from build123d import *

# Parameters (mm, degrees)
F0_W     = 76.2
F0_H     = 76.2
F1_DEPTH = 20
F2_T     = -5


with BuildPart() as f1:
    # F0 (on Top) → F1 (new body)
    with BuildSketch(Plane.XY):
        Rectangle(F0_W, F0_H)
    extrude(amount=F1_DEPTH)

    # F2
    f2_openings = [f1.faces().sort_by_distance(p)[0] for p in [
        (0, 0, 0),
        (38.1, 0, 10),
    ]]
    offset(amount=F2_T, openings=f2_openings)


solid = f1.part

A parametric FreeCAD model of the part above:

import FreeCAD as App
import Part
import Sketcher
Q = App.Units.Quantity


def faces_at(feature, points):
    """Names of the faces that lie closest to the given points."""
    faces = feature.Shape.Faces
    near = lambda p: min(range(len(faces)), key=lambda i: faces[i].distToShape(Part.Vertex(*p))[0])
    return sorted({f"Face{near(p) + 1}" for p in points})

doc = App.newDocument("Part")
params = doc.addObject("Spreadsheet::Sheet", "Params")
for row, (alias, value) in enumerate([
    ("sketch1_width", "76.2 mm"),
    ("pad1_length", "20 mm"),
    ("thickness_wall", "5 mm"),
], start=1):
    params.set(f"A{row}", alias)
    params.set(f"B{row}", "=" + value)
    params.setAlias(f"B{row}", alias)

body = doc.addObject("PartDesign::Body", "Body")

sketch1 = doc.addObject("Sketcher::SketchObject", "Sketch")
body.addObject(sketch1)
sketch1.AttachmentSupport = (doc.XY_Plane, [""])
sketch1.MapMode = "FlatFace"
sketch1.addGeometry([
    Part.LineSegment(App.Vector(-38, 38, 0), App.Vector(-38, -38, 0)),
    Part.LineSegment(App.Vector(-38, -38, 0), App.Vector(38, -38, 0)),
    Part.LineSegment(App.Vector(38, -38, 0), App.Vector(38, 38, 0)),
    Part.LineSegment(App.Vector(38, 38, 0), App.Vector(-38, 38, 0)),
], False)
sketch1.addConstraint([
    Sketcher.Constraint("Coincident", 0, 2, 1, 1),
    Sketcher.Constraint("Coincident", 1, 2, 2, 1),
    Sketcher.Constraint("Coincident", 2, 2, 3, 1),
    Sketcher.Constraint("Coincident", 3, 2, 0, 1),
    Sketcher.Constraint("Vertical", 0),
    Sketcher.Constraint("Horizontal", 1),
    Sketcher.Constraint("Vertical", 2),
    Sketcher.Constraint("Horizontal", 3),
    Sketcher.Constraint("Symmetric", 0, 2, 2, 2, -1, 1),
    Sketcher.Constraint("Equal", 3, 0),
    Sketcher.Constraint("DistanceX", 1, 1, 1, 2, Q("76.2 mm")),
])
sketch1.setExpression("Constraints[10]", "Params.sketch1_width")
pad1 = doc.addObject("PartDesign::Pad", "Pad")
body.addObject(pad1)
pad1.Profile = sketch1
pad1.setExpression("Length", "Params.pad1_length")
doc.recompute()

thickness = doc.addObject("PartDesign::Thickness", "Thickness")
body.addObject(thickness)
thickness.Base = (pad1, faces_at(pad1, [(0, 0, 0), (38.1, 0, 10)]))
thickness.setExpression("Value", "Params.thickness_wall")
thickness.Reversed = True
thickness.Join = "Arc"

doc.recompute()
